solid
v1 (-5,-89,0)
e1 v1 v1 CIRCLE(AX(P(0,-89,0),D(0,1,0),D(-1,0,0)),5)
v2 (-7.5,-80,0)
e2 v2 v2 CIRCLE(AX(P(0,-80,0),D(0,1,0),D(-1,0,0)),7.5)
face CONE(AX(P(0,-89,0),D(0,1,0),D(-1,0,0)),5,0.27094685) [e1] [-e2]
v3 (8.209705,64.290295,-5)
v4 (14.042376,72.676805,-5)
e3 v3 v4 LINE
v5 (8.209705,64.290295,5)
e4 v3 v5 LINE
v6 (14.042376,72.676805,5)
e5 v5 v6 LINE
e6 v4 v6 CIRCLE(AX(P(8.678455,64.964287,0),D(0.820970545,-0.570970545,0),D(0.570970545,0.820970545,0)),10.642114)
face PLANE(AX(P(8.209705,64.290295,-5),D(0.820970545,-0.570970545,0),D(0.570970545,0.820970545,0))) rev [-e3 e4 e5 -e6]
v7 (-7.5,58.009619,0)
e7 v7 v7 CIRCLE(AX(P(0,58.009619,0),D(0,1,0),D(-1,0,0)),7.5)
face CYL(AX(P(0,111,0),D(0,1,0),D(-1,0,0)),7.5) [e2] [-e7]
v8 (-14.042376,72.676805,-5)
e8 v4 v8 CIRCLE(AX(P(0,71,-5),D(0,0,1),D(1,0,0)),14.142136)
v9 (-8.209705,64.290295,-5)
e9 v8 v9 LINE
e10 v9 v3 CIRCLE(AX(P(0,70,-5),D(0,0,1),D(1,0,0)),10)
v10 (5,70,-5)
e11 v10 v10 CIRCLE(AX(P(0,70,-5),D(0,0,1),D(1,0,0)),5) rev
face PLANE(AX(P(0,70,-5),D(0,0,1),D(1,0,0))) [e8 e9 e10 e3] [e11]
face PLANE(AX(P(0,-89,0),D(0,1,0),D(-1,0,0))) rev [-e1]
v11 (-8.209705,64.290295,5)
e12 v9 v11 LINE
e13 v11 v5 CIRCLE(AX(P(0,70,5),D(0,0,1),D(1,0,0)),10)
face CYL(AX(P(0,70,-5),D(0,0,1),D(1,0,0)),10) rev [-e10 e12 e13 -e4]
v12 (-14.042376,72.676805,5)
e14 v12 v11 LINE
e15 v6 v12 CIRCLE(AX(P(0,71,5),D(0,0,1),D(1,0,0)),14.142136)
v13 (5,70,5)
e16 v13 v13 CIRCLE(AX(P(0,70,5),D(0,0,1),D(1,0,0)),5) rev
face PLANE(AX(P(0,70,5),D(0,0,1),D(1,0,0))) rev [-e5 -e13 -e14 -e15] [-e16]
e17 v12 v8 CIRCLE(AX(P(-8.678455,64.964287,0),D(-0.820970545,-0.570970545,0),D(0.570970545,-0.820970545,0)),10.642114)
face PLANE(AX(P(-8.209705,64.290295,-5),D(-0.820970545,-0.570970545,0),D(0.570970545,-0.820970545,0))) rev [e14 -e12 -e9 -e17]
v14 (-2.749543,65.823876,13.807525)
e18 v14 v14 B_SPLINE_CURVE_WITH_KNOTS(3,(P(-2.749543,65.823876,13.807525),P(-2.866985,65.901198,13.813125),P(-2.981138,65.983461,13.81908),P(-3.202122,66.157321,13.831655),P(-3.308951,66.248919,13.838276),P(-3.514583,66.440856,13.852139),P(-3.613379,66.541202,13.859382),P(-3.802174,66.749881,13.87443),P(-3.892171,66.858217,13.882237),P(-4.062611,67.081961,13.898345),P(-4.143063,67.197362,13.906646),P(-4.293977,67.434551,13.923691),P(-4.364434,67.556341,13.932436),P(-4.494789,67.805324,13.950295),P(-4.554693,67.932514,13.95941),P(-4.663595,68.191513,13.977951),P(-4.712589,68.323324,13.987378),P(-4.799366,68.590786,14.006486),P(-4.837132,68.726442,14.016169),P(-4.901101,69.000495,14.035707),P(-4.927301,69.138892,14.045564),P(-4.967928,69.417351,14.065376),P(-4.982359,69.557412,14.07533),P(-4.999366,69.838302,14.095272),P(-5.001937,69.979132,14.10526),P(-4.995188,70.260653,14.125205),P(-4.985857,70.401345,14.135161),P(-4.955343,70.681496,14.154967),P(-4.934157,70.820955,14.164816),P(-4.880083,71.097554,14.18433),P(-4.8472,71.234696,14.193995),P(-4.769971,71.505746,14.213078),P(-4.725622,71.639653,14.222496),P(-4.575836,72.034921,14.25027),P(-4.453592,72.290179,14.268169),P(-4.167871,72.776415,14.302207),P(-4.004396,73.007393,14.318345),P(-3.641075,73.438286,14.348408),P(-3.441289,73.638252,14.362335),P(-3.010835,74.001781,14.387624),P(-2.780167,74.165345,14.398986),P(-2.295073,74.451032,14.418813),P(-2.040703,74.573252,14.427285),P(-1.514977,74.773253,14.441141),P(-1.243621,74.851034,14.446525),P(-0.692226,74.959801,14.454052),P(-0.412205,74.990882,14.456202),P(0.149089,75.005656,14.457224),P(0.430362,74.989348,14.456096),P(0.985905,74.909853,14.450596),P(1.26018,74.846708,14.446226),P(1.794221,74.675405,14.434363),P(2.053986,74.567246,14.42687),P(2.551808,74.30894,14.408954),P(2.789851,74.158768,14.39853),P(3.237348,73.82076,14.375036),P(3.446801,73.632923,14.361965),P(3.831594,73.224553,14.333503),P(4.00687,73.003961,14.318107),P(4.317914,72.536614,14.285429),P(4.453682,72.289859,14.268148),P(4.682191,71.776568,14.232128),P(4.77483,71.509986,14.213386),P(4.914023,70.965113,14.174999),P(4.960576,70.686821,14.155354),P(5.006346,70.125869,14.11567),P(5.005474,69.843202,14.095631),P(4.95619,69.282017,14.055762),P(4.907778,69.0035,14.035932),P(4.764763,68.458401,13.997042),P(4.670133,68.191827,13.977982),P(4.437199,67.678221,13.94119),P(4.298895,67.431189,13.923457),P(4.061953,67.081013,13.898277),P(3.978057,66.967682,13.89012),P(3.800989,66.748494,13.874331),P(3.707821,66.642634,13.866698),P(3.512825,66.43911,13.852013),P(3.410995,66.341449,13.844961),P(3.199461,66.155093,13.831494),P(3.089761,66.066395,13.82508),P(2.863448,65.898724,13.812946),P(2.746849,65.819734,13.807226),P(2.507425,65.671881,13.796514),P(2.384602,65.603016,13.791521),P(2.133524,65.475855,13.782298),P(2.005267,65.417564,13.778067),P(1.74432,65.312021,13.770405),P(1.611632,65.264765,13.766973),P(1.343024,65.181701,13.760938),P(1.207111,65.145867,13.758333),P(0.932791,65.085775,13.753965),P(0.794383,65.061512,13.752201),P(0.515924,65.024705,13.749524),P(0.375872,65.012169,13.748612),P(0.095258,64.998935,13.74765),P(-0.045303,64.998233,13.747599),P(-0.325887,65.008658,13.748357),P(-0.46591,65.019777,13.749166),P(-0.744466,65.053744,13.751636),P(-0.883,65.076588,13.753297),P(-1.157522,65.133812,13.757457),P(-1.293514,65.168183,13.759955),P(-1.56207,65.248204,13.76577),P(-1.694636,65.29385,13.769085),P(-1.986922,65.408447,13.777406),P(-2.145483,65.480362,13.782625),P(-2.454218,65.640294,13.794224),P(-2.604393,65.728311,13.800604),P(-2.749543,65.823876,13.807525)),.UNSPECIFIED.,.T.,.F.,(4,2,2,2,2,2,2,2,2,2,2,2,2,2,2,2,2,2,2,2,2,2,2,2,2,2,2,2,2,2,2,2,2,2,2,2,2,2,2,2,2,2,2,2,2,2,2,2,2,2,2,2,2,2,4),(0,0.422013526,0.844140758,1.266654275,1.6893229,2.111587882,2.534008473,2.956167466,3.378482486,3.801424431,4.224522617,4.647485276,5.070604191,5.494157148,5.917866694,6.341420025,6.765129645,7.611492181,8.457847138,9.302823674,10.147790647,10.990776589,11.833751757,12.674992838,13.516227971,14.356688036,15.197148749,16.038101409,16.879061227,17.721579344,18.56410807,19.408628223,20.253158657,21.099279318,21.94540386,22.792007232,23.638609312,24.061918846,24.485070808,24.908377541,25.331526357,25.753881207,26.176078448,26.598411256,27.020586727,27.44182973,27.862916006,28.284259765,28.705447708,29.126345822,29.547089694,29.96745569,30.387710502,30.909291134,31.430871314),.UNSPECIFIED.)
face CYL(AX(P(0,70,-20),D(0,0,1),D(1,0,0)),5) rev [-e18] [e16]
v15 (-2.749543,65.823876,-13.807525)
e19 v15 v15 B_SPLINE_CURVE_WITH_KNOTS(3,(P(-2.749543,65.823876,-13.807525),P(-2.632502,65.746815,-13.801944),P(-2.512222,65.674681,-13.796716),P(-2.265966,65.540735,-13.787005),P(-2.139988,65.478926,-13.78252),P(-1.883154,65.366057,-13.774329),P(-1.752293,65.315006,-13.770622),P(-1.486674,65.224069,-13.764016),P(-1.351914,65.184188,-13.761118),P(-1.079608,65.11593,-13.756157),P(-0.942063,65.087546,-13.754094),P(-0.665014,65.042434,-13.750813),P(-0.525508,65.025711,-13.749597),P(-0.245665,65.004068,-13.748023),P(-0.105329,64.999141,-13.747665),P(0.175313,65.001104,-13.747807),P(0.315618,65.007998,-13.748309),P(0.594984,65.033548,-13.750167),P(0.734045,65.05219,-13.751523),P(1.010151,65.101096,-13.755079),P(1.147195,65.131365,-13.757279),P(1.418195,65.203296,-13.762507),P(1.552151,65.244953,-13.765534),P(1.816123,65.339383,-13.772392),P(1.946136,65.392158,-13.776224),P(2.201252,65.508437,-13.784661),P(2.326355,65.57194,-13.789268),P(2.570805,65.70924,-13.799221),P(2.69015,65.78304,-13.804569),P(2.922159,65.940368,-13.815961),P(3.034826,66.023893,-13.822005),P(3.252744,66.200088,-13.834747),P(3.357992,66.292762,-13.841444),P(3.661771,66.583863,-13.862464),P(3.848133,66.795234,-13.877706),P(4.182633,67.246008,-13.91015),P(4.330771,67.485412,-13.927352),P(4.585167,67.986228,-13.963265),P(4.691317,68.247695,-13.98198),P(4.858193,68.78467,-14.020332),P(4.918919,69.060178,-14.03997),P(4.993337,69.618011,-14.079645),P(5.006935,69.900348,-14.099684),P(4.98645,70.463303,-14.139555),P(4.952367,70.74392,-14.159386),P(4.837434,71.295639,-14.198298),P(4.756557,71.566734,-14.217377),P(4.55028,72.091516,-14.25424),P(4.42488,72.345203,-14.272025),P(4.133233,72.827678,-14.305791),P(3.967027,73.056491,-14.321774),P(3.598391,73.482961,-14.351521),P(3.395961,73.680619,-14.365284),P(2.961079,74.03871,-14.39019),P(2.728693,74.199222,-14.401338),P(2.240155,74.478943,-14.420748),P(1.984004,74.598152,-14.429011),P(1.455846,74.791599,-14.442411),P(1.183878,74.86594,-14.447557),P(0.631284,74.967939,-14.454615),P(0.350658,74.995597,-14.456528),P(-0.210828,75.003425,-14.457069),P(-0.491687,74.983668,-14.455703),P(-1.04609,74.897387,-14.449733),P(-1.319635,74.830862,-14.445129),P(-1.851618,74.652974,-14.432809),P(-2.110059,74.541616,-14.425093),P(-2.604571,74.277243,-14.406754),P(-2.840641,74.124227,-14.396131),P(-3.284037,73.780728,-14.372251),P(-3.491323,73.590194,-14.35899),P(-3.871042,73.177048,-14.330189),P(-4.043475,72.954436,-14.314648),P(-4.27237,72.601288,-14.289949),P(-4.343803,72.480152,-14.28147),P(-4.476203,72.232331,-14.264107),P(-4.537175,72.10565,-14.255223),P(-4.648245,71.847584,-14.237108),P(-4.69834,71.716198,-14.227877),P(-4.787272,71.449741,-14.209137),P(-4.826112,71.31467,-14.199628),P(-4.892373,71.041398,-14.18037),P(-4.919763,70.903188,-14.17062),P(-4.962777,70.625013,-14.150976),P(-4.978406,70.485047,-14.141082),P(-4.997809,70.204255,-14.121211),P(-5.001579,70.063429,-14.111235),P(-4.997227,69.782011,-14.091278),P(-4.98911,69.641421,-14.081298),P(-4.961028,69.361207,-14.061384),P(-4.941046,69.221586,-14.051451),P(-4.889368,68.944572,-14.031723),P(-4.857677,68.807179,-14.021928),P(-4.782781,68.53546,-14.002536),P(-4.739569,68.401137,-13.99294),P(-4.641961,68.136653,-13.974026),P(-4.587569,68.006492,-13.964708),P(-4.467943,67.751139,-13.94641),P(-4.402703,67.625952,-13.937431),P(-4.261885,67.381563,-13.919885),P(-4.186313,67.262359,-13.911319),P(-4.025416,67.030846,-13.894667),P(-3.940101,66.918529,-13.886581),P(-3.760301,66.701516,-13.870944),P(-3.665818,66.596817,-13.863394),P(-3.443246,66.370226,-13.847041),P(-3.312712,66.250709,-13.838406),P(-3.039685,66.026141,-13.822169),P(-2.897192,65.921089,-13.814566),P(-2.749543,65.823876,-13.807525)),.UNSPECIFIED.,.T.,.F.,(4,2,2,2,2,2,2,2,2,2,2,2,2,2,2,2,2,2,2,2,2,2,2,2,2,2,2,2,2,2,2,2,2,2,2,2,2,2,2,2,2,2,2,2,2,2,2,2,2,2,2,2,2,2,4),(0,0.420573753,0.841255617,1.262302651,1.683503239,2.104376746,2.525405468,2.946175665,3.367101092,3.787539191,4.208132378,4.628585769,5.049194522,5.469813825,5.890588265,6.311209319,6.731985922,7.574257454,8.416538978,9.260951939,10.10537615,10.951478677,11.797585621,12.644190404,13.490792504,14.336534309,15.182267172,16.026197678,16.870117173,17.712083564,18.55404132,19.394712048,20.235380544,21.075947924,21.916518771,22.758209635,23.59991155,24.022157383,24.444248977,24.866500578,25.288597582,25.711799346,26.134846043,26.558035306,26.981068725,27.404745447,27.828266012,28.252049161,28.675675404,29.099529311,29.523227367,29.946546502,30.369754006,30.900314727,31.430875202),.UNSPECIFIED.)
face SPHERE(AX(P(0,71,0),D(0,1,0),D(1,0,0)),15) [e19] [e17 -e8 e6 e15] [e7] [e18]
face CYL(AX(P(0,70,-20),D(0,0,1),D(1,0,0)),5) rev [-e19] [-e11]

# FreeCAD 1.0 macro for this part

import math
import FreeCAD as App
import Part
import Sketcher
from FreeCAD import Vector

doc = App.newDocument("Part")
body = doc.addObject("PartDesign::Body", "Body")

sketch1 = body.newObject("Sketcher::SketchObject", "Sketch")
sketch1.AttachmentSupport = (doc.getObject("XY_Plane"), [""])
sketch1.MapMode = "FlatFace"
sketch1.addGeometry([
    Part.LineSegment(Vector(0, -89, 0), Vector(5, -89, 0)),
    Part.LineSegment(Vector(5, -89, 0), Vector(7.5, -80, 0)),
    Part.LineSegment(Vector(7.5, -80, 0), Vector(7.5, 58.009619, 0)),
    Part.ArcOfCircle(Part.Circle(Vector(0, 71, 0), Vector(0, 0, 1), 15), math.radians(-60), math.radians(90)),
    Part.LineSegment(Vector(0, 86, 0), Vector(0, -89, 0)),
], False)
sketch1.addConstraint([
    Sketcher.Constraint("Coincident", 0, 2, 1, 1),
    Sketcher.Constraint("Coincident", 1, 2, 2, 1),
    Sketcher.Constraint("Coincident", 2, 2, 3, 1),
    Sketcher.Constraint("Coincident", 3, 2, 4, 1),
    Sketcher.Constraint("Coincident", 4, 2, 0, 1),
    Sketcher.Constraint("Horizontal", 0),
    Sketcher.Constraint("Vertical", 2),
    Sketcher.Constraint("Vertical", 4),
    Sketcher.Constraint("PointOnObject", 3, 3, -2),
    Sketcher.Constraint("PointOnObject", 3, 2, -2),
    Sketcher.Constraint("Radius", 3, 15.0),
    Sketcher.Constraint("DistanceX", 0, 1, 0, 2, 5.0),
    Sketcher.Constraint("DistanceY", 4, 2, 4, 1, 175.0),
    Sketcher.Constraint("DistanceY", -1, 1, 3, 3, 71.0),
    Sketcher.Constraint("DistanceY", 1, 2, -1, 1, 80.0),
    Sketcher.Constraint("DistanceX", -1, 1, 1, 2, 7.5),
])
revolution = body.newObject("PartDesign::Revolution", "Revolution")
revolution.Profile = sketch1
revolution.ReferenceAxis = (sketch1, ["V_Axis"])
revolution.Angle = 360

sketch2 = body.newObject("Sketcher::SketchObject", "Sketch001")
sketch2.AttachmentSupport = (doc.getObject("XY_Plane"), [""])
sketch2.MapMode = "FlatFace"
sketch2.addGeometry(Part.Circle(Vector(0, 70, 0), Vector(0, 0, 1), 5), False)
sketch2.addConstraint([
    Sketcher.Constraint("PointOnObject", 0, 3, -2),
    Sketcher.Constraint("Diameter", 0, 10.0),
    Sketcher.Constraint("DistanceY", -1, 1, 0, 3, 70.0),
])
pocket1 = body.newObject("PartDesign::Pocket", "Pocket")
pocket1.Profile = sketch2
pocket1.Length = 40
pocket1.Midplane = True

sketch3 = body.newObject("Sketcher::SketchObject", "Sketch002")
sketch3.AttachmentSupport = (doc.getObject("XY_Plane"), [""])
sketch3.MapMode = "FlatFace"
sketch3.addGeometry([
    Part.LineSegment(Vector(40, 110, 0), Vector(-40, 110, 0)),
    Part.LineSegment(Vector(-40, 110, 0), Vector(-8.209705, 64.290295, 0)),
    Part.ArcOfCircle(Part.Circle(Vector(0, 70, 0), Vector(0, 0, 1), 10), math.radians(-145.182067), math.radians(-34.817933)),
    Part.LineSegment(Vector(8.209705, 64.290295, 0), Vector(40, 110, 0)),
], False)
sketch3.addConstraint([
    Sketcher.Constraint("Coincident", 0, 2, 1, 1),
    Sketcher.Constraint("Tangent", 1, 2, 2, 1),
    Sketcher.Constraint("Tangent", 2, 2, 3, 1),
    Sketcher.Constraint("Coincident", 3, 2, 0, 1),
    Sketcher.Constraint("Horizontal", 0),
    Sketcher.Constraint("Symmetric", 1, 2, 2, 2, -2),
    Sketcher.Constraint("Radius", 2, 10.0),
    Sketcher.Constraint("DistanceX", 0, 2, 0, 1, 80.0),
    Sketcher.Constraint("DistanceY", -1, 1, 2, 3, 70.0),
    Sketcher.Constraint("DistanceY", -1, 1, 0, 2, 110.0),
])
pocket2 = body.newObject("PartDesign::Pocket", "Pocket001")
pocket2.Profile = sketch3
pocket2.Length = 10
pocket2.Midplane = True

doc.recompute()
